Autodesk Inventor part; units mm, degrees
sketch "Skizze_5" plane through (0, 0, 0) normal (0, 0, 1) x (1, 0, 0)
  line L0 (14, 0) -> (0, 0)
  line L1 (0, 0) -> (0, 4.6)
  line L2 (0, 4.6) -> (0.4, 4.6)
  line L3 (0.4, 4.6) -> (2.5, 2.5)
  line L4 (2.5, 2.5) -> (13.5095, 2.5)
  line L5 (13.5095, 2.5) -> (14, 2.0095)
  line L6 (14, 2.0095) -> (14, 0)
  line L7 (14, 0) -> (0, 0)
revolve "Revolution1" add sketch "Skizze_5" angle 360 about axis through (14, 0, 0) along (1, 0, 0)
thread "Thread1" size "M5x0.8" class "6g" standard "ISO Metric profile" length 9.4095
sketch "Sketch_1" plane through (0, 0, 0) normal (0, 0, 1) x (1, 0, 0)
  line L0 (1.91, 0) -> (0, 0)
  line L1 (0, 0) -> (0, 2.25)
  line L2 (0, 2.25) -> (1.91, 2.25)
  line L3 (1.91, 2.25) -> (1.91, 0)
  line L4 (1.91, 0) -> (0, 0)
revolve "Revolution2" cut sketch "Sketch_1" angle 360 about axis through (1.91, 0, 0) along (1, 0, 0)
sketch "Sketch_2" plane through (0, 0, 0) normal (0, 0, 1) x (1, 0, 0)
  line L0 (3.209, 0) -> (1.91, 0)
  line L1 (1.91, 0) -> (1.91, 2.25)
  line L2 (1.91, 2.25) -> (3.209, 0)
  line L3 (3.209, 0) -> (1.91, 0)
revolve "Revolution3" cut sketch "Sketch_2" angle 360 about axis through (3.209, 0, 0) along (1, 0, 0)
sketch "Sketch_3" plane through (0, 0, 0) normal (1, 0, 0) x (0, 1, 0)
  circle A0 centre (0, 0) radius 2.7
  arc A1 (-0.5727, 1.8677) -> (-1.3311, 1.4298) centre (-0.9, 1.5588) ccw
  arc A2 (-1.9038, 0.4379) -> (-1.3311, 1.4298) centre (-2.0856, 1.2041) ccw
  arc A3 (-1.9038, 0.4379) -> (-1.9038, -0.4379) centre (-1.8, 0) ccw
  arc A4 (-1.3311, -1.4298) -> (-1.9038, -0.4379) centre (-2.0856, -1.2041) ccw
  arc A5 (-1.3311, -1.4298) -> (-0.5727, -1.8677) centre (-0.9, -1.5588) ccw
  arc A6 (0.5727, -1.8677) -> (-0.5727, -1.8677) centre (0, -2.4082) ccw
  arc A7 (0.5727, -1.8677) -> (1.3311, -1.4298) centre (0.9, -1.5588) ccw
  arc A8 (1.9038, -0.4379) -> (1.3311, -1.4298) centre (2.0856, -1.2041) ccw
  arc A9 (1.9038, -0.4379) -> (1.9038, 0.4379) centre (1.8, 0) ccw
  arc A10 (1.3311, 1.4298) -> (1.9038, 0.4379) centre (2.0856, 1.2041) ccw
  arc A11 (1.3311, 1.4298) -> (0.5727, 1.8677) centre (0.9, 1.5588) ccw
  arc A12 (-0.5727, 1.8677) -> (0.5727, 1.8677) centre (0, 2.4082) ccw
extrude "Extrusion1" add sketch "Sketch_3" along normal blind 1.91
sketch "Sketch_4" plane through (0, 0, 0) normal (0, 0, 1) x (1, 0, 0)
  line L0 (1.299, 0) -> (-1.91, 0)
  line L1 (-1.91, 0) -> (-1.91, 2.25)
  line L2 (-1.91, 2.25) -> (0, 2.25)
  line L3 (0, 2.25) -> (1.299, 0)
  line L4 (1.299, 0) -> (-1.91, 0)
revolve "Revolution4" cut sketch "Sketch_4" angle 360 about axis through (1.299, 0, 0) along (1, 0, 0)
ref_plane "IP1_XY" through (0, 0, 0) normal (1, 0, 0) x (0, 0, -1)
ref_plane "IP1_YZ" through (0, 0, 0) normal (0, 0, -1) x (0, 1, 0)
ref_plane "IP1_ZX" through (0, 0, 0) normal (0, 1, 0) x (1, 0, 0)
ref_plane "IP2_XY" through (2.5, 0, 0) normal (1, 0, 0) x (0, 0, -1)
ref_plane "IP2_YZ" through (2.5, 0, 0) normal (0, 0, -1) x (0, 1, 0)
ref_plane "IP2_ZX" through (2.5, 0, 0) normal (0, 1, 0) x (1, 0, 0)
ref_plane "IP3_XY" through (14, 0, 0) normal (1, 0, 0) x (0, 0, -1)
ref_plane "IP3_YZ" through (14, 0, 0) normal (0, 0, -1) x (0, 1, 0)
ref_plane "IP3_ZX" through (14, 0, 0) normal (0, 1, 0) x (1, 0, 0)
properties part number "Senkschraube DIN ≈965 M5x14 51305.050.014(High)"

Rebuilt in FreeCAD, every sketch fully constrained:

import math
import FreeCAD as App
import Part
import Sketcher
from FreeCAD import Vector
Q = App.Units.Quantity


def add_polygon(sketch, points):
    """Adds a closed chain of lines whose ends are joined by coincident constraints."""
    first, n = sketch.GeometryCount, len(points)
    for a, b in zip(points, points[1:] + points[:1]):
        sketch.addGeometry(Part.LineSegment(App.Vector(*a, 0), App.Vector(*b, 0)), False)
    for i in range(n):
        sketch.addConstraint(Sketcher.Constraint("Coincident", first + i, 2, first + (i + 1) % n, 1))

doc = App.newDocument("Part")
body = doc.addObject("PartDesign::Body", "Body")

sketch1 = body.newObject("Sketcher::SketchObject", "Sketch")
sketch1.AttachmentSupport = (doc.getObject("XY_Plane"), [""])
sketch1.MapMode = "FlatFace"
add_polygon(sketch1, [(0, 0), (14, 0), (14, 2.01), (13.51, 2.5), (2.5, 2.5), (0.4, 4.6), (0, 4.6)])
sketch1.addConstraint([
    Sketcher.Constraint("Horizontal", 0),
    Sketcher.Constraint("Vertical", 1),
    Sketcher.Constraint("Horizontal", 3),
    Sketcher.Constraint("Horizontal", 5),
    Sketcher.Constraint("Vertical", 6),
    Sketcher.Constraint("Coincident", 6, 2, -1, 1),
    Sketcher.Constraint("Parallel", 2, 4),
    Sketcher.Constraint("DistanceX", 0, 1, 0, 2, Q("14 mm")),
    Sketcher.Constraint("Angle", 2, Q("135 deg")),
    Sketcher.Constraint("DistanceX", 5, 2, 5, 1, Q("0.4 mm")),
    Sketcher.Constraint("DistanceY", 6, 2, 6, 1, Q("4.6 mm")),
    Sketcher.Constraint("DistanceY", -1, 1, 2, 2, Q("2.5 mm")),
    Sketcher.Constraint("DistanceX", 3, 2, 3, 1, Q("11.0095 mm")),
])
revolution = body.newObject("PartDesign::Revolution", "Revolution")
revolution.Profile = sketch1
revolution.ReferenceAxis = (sketch1, ["H_Axis"])
revolution.Angle = 360

sketch2 = body.newObject("Sketcher::SketchObject", "Sketch001")
sketch2.AttachmentSupport = (doc.getObject("XY_Plane"), [""])
sketch2.MapMode = "FlatFace"
add_polygon(sketch2, [(0, 0), (1.9, 0), (1.9, 2.2), (0, 2.2)])
sketch2.addConstraint([
    Sketcher.Constraint("Horizontal", 0),
    Sketcher.Constraint("Vertical", 1),
    Sketcher.Constraint("Horizontal", 2),
    Sketcher.Constraint("Vertical", 3),
    Sketcher.Constraint("Coincident", 3, 2, -1, 1),
    Sketcher.Constraint("DistanceX", 0, 1, 0, 2, Q("1.91 mm")),
    Sketcher.Constraint("DistanceY", 1, 1, 1, 2, Q("2.25 mm")),
])
groove = body.newObject("PartDesign::Groove", "Groove")
groove.Profile = sketch2
groove.ReferenceAxis = (sketch2, ["H_Axis"])
groove.Angle = 360

sketch3 = body.newObject("Sketcher::SketchObject", "Sketch002")
sketch3.AttachmentSupport = (doc.getObject("XY_Plane"), [""])
sketch3.MapMode = "FlatFace"
add_polygon(sketch3, [(1.9, 0), (3.2, 0), (1.9, 2.2)])
sketch3.addConstraint([
    Sketcher.Constraint("Horizontal", 0),
    Sketcher.Constraint("Vertical", 2),
    Sketcher.Constraint("PointOnObject", 0, 2, -1),
    Sketcher.Constraint("Angle", 1, Q("119.9993 deg")),
    Sketcher.Constraint("DistanceY", 2, 2, 2, 1, Q("2.25 mm")),
    Sketcher.Constraint("DistanceX", -1, 1, 1, 2, Q("1.91 mm")),
])
groove2 = body.newObject("PartDesign::Groove", "Groove001")
groove2.Profile = sketch3
groove2.ReferenceAxis = (sketch3, ["H_Axis"])
groove2.Angle = 360

sketch4 = body.newObject("Sketcher::SketchObject", "Sketch003")
sketch4.AttachmentSupport = (doc.getObject("YZ_Plane"), [""])
sketch4.MapMode = "FlatFace"
sketch4.addGeometry([
    Part.Circle(Vector(0, 0, 0), Vector(0, 0, 1), 2.7),
    Part.ArcOfCircle(Part.Circle(Vector(-0.9, 1.56, 0), Vector(0, 0, 1), 0.45), math.radians(43), math.radians(197)),
    Part.ArcOfCircle(Part.Circle(Vector(0, 2.41, 0), Vector(0, 0, 1), 0.79), math.radians(-137), math.radians(-43)),
    Part.ArcOfCircle(Part.Circle(Vector(0.9, 1.56, 0), Vector(0, 0, 1), 0.45), math.radians(-17), math.radians(137)),
    Part.ArcOfCircle(Part.Circle(Vector(2.09, 1.2, 0), Vector(0, 0, 1), 0.79), math.radians(163), math.radians(257)),
    Part.ArcOfCircle(Part.Circle(Vector(1.8, 0, 0), Vector(0, 0, 1), 0.45), math.radians(-77), math.radians(77)),
    Part.ArcOfCircle(Part.Circle(Vector(2.09, -1.2, 0), Vector(0, 0, 1), 0.79), math.radians(103), math.radians(197)),
    Part.ArcOfCircle(Part.Circle(Vector(0.9, -1.56, 0), Vector(0, 0, 1), 0.45), math.radians(-137), math.radians(17)),
    Part.ArcOfCircle(Part.Circle(Vector(0, -2.41, 0), Vector(0, 0, 1), 0.79), math.radians(43), math.radians(137)),
    Part.ArcOfCircle(Part.Circle(Vector(-0.9, -1.56, 0), Vector(0, 0, 1), 0.45), math.radians(163), math.radians(317)),
    Part.ArcOfCircle(Part.Circle(Vector(-2.09, -1.2, 0), Vector(0, 0, 1), 0.79), math.radians(-17), math.radians(77)),
    Part.ArcOfCircle(Part.Circle(Vector(-1.8, 0, 0), Vector(0, 0, 1), 0.45), math.radians(103), math.radians(257)),
    Part.ArcOfCircle(Part.Circle(Vector(-2.09, 1.2, 0), Vector(0, 0, 1), 0.79), math.radians(-77), math.radians(17)),
], False)
sketch4.addConstraint([
    Sketcher.Constraint("Tangent", 1, 1, 2, 1),
    Sketcher.Constraint("Tangent", 2, 2, 3, 2),
    Sketcher.Constraint("Tangent", 3, 1, 4, 1),
    Sketcher.Constraint("Tangent", 4, 2, 5, 2),
    Sketcher.Constraint("Tangent", 5, 1, 6, 1),
    Sketcher.Constraint("Tangent", 6, 2, 7, 2),
    Sketcher.Constraint("Tangent", 7, 1, 8, 1),
    Sketcher.Constraint("Tangent", 8, 2, 9, 2),
    Sketcher.Constraint("Tangent", 9, 1, 10, 1),
    Sketcher.Constraint("Tangent", 10, 2, 11, 2),
    Sketcher.Constraint("Tangent", 11, 1, 12, 1),
    Sketcher.Constraint("Tangent", 12, 2, 1, 2),
    Sketcher.Constraint("Coincident", 0, 3, -1, 1),
    Sketcher.Constraint("Equal", 1, 3),
    Sketcher.Constraint("Equal", 2, 4),
    Sketcher.Constraint("Equal", 3, 5),
    Sketcher.Constraint("Equal", 4, 6),
    Sketcher.Constraint("Equal", 5, 7),
    Sketcher.Constraint("Equal", 6, 8),
    Sketcher.Constraint("Equal", 7, 9),
    Sketcher.Constraint("Equal", 8, 10),
    Sketcher.Constraint("Equal", 9, 11),
    Sketcher.Constraint("Equal", 10, 12),
    Sketcher.Constraint("Symmetric", 1, 3, 7, 3, -1, 1),
    Sketcher.Constraint("Symmetric", 3, 3, 9, 3, -1, 1),
    Sketcher.Constraint("Symmetric", 5, 3, 11, 3, -1, 1),
    Sketcher.Constraint("Symmetric", 1, 3, 3, 3, -2),
    Sketcher.Constraint("PointOnObject", 5, 3, -1),
    Sketcher.Constraint("Diameter", 0, Q("5.4 mm")),
    Sketcher.Constraint("Radius", 1, Q("0.45 mm")),
    Sketcher.Constraint("DistanceX", 1, 3, -1, 1, Q("0.9 mm")),
    Sketcher.Constraint("DistanceX", -1, 1, 5, 3, Q("1.8 mm")),
    Sketcher.Constraint("Radius", 2, Q("0.7875 mm")),
    Sketcher.Constraint("DistanceY", -1, 1, 4, 3, Q("1.204 mm")),
])
pad1 = body.newObject("PartDesign::Pad", "Pad")
pad1.Profile = sketch4
pad1.Length = 1.91

sketch5 = body.newObject("Sketcher::SketchObject", "Sketch004")
sketch5.AttachmentSupport = (doc.getObject("XY_Plane"), [""])
sketch5.MapMode = "FlatFace"
add_polygon(sketch5, [(-1.9, 0), (1.3, 0), (0, 2.2), (-1.9, 2.2)])
sketch5.addConstraint([
    Sketcher.Constraint("Horizontal", 0),
    Sketcher.Constraint("Horizontal", 2),
    Sketcher.Constraint("Vertical", 3),
    Sketcher.Constraint("PointOnObject", 0, 2, -1),
    Sketcher.Constraint("PointOnObject", 1, 2, -2),
    Sketcher.Constraint("Angle", 1, Q("119.9993 deg")),
    Sketcher.Constraint("DistanceX", 2, 2, 2, 1, Q("1.91 mm")),
    Sketcher.Constraint("DistanceY", 3, 2, 3, 1, Q("2.25 mm")),
])
groove3 = body.newObject("PartDesign::Groove", "Groove002")
groove3.Profile = sketch5
groove3.ReferenceAxis = (sketch5, ["H_Axis"])
groove3.Angle = 360

doc.recompute()
